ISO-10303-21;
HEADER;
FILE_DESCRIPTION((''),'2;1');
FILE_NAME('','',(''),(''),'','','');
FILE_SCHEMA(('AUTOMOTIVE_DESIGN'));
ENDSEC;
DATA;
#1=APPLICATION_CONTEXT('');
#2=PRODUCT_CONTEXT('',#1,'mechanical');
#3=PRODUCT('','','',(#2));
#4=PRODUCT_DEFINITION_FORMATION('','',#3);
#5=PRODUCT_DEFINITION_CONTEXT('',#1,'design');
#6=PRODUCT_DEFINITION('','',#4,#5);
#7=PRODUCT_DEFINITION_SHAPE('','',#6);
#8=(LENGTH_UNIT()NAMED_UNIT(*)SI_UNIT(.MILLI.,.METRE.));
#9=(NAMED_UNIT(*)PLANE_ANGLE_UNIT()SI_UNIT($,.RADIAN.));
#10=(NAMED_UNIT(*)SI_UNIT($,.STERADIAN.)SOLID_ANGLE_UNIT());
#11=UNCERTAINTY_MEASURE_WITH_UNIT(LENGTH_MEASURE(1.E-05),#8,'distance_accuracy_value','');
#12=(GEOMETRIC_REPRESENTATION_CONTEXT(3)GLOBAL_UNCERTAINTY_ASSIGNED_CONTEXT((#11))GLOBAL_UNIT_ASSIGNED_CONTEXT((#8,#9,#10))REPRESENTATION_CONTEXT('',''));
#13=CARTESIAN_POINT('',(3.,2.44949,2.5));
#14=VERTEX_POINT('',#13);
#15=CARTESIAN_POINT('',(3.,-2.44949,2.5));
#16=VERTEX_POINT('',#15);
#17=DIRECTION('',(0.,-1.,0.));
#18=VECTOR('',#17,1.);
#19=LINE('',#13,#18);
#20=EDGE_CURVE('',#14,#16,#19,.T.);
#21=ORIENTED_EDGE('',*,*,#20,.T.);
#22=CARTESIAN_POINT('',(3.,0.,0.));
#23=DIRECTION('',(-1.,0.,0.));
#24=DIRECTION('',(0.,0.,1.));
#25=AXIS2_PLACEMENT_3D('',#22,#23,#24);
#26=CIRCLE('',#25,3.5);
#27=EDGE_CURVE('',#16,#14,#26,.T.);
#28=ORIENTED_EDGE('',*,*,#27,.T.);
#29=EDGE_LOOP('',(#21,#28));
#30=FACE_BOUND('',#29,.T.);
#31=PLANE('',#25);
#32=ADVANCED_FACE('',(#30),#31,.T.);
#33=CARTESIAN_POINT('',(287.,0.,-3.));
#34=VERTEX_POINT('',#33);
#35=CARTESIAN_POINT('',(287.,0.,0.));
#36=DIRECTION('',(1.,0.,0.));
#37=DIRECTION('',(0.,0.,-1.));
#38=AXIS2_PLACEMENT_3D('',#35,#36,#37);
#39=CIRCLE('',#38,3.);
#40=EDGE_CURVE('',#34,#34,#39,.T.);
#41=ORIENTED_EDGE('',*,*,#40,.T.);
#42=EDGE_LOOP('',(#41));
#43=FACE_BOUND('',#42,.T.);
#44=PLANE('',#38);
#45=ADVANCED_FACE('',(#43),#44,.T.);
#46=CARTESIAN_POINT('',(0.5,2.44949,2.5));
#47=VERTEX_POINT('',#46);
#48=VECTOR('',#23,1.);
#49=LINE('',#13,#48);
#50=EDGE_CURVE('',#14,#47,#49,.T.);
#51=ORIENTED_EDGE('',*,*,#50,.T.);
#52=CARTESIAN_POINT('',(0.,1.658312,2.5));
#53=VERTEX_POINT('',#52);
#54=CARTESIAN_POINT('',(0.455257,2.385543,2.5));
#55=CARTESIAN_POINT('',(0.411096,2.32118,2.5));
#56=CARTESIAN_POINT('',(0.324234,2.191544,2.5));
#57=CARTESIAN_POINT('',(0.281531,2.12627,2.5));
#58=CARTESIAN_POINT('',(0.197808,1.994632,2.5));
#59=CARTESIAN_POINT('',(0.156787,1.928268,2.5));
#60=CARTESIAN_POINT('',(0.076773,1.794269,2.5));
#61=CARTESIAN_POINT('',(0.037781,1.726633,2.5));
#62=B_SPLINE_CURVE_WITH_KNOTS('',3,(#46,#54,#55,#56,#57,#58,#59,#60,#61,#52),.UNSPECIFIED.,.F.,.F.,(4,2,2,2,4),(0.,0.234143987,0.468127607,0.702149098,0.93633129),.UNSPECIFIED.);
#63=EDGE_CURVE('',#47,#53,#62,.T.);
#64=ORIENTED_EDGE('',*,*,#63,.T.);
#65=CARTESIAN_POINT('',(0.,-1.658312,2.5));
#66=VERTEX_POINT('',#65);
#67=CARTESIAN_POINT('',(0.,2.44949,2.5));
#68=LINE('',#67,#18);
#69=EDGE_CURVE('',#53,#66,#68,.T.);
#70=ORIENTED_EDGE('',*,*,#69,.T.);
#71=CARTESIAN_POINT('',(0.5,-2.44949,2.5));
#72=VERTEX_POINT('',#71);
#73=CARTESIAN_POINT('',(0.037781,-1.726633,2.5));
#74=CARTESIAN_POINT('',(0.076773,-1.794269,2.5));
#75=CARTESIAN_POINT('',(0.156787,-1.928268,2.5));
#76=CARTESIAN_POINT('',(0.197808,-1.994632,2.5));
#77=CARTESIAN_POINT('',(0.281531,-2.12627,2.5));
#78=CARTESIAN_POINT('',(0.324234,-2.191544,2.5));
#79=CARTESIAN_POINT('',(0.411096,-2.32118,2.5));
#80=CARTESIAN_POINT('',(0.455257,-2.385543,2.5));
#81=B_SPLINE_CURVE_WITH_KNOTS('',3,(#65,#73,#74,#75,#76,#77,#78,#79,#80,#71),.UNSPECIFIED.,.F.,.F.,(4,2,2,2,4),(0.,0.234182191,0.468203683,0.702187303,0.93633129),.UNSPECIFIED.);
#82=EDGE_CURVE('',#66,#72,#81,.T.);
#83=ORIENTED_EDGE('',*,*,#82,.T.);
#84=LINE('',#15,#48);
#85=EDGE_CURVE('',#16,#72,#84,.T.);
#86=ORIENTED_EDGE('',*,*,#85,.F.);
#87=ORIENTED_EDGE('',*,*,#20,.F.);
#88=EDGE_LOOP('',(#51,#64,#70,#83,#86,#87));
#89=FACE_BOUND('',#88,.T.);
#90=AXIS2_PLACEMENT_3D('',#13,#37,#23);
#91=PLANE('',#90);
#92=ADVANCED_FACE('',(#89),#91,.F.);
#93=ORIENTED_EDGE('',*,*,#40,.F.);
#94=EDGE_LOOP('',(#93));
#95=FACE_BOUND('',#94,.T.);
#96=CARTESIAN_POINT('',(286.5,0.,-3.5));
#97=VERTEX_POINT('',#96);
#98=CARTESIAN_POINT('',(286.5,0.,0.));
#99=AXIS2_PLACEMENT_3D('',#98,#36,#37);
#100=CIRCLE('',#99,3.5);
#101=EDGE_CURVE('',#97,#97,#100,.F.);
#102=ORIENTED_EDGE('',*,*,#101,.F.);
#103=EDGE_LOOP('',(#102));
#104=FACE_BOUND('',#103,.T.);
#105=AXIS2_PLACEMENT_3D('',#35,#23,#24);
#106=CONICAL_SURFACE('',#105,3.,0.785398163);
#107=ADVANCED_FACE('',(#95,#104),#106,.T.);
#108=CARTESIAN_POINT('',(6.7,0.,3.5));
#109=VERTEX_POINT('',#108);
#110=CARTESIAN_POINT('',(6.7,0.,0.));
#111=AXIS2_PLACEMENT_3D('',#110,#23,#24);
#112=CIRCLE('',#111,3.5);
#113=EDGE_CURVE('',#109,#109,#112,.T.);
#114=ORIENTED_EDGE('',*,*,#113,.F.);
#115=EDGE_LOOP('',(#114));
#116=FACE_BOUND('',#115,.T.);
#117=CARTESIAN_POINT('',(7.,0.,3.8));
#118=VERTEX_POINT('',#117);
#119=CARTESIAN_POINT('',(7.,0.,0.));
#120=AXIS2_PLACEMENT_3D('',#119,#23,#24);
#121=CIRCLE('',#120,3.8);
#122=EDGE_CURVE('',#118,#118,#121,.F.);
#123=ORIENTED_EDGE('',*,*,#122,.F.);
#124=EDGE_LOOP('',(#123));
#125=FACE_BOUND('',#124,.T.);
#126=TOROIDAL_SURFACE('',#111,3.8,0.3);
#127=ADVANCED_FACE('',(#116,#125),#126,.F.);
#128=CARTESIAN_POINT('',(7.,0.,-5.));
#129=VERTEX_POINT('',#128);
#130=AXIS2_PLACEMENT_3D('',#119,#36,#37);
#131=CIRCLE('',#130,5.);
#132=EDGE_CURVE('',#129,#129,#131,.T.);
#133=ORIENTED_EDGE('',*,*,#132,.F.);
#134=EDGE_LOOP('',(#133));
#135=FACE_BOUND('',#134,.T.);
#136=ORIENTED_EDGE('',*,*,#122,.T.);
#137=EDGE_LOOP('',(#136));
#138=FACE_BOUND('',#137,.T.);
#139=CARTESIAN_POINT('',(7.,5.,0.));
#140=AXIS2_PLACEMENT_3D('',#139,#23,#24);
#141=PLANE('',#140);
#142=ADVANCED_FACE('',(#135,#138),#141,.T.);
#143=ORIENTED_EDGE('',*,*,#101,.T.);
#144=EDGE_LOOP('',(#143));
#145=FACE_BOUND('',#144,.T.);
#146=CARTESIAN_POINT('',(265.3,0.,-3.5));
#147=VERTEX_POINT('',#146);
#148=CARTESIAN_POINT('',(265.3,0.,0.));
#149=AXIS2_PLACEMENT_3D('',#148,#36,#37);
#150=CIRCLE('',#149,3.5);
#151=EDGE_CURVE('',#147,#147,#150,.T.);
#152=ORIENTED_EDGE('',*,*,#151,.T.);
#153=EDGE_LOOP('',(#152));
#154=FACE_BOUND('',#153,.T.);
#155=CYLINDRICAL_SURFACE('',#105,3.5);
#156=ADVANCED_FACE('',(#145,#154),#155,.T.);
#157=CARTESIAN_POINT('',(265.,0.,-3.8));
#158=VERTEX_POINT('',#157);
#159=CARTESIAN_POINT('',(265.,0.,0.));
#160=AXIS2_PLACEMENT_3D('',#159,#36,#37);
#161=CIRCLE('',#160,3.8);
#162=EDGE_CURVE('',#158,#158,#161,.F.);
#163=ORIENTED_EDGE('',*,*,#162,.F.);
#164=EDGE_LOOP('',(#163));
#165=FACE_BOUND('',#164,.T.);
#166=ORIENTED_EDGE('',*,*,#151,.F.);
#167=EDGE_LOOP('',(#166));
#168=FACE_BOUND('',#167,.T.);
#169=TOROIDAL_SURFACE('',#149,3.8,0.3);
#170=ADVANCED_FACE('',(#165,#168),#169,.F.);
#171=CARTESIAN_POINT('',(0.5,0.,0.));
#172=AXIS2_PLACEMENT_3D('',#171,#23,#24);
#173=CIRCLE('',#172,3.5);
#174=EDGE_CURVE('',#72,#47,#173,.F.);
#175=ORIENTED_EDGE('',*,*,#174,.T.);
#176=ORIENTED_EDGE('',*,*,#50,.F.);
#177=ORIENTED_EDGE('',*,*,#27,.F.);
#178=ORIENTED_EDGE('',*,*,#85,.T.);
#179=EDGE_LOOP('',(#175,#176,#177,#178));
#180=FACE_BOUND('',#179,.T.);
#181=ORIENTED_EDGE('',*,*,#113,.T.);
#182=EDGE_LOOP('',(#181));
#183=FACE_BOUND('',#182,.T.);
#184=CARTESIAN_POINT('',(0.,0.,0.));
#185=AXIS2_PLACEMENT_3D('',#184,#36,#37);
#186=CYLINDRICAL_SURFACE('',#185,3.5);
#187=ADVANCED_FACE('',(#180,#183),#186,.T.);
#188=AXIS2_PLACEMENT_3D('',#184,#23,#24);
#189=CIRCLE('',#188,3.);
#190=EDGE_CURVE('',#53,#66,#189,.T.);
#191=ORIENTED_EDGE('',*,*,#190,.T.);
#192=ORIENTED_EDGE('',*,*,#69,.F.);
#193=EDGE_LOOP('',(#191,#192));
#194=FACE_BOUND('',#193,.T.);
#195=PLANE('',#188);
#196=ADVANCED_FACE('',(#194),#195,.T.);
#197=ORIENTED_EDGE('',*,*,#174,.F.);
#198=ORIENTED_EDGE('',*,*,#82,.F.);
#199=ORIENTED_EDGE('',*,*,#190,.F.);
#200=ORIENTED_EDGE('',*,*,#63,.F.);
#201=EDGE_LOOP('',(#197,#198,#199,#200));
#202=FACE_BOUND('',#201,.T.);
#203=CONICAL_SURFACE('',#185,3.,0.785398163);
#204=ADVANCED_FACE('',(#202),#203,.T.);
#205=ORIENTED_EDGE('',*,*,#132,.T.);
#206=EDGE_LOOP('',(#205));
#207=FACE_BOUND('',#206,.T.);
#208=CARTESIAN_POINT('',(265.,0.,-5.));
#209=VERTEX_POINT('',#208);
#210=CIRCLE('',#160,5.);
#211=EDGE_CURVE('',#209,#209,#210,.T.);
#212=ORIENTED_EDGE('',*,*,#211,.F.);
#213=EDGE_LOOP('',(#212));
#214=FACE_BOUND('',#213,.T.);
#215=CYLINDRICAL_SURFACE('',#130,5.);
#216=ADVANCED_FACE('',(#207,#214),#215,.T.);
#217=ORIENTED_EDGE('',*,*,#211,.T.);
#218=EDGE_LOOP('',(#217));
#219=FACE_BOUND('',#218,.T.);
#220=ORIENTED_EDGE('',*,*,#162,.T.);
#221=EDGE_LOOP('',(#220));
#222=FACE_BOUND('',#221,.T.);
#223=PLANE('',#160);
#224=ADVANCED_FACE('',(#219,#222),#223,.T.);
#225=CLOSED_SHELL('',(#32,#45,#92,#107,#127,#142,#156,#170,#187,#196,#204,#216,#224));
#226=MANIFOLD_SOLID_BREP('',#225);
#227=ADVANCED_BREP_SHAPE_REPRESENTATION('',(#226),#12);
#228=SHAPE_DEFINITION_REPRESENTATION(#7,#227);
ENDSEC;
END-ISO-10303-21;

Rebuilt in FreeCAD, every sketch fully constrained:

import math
import FreeCAD as App
import Part
import Sketcher
from FreeCAD import Vector
Q = App.Units.Quantity


def edges_at(feature, points):
    """Names of the edges that pass closest to the given points."""
    edges = feature.Shape.Edges
    near = lambda p: min(range(len(edges)), key=lambda i: edges[i].distToShape(Part.Vertex(*p))[0])
    return sorted({f"Edge{near(p) + 1}" for p in points})


def add_polygon(sketch, points):
    """Adds a closed chain of lines whose ends are joined by coincident constraints."""
    first, n = sketch.GeometryCount, len(points)
    for a, b in zip(points, points[1:] + points[:1]):
        sketch.addGeometry(Part.LineSegment(App.Vector(*a, 0), App.Vector(*b, 0)), False)
    for i in range(n):
        sketch.addConstraint(Sketcher.Constraint("Coincident", first + i, 2, first + (i + 1) % n, 1))

doc = App.newDocument("Part")
body = doc.addObject("PartDesign::Body", "Body")

# Sketch on XY plane
sketch1 = doc.addObject("Sketcher::SketchObject", "Sketch")
body.addObject(sketch1)
sketch1.AttachmentSupport = (doc.XY_Plane, [""])
sketch1.MapMode = "FlatFace"
add_polygon(sketch1, [(7, 5), (7, 0), (265, 0), (265, 5)])  # lines 0-3
sketch1.addConstraint([
    Sketcher.Constraint("Vertical", 0),
    Sketcher.Constraint("Horizontal", 1),
    Sketcher.Constraint("Vertical", 2),
    Sketcher.Constraint("Horizontal", 3),
    Sketcher.Constraint("PointOnObject", 0, 2, -1),
    Sketcher.Constraint("DistanceX", 1, 1, 1, 2, Q("258 mm")),
    Sketcher.Constraint("DistanceY", 0, 2, 0, 1, Q("5 mm")),
    Sketcher.Constraint("DistanceX", -1, 1, 0, 2, Q("7 mm")),
])
revolution = doc.addObject("PartDesign::Revolution", "Revolution")
body.addObject(revolution)
revolution.Profile = sketch1
revolution.ReferenceAxis = (sketch1, ["H_Axis"])
revolution.Angle = 360

# Sketch on YZ plane
sketch2 = doc.addObject("Sketcher::SketchObject", "Sketch001")
body.addObject(sketch2)
sketch2.AttachmentSupport = (doc.YZ_Plane, [""])
sketch2.MapMode = "FlatFace"
sketch2.AttachmentOffset = App.Placement(Vector(0, 0, 7), App.Rotation())
sketch2.addGeometry(Part.Circle(Vector(0, 0, 0), Vector(0, 0, 1), 3.5), False)
sketch2.addConstraint([
    Sketcher.Constraint("Coincident", 0, 3, -1, 1),
    Sketcher.Constraint("Diameter", 0, Q("7 mm")),
])
pad1 = doc.addObject("PartDesign::Pad", "Pad")
body.addObject(pad1)
pad1.Profile = sketch2
pad1.Length = 7
pad1.Reversed = True

# Sketch on YZ plane
sketch3 = doc.addObject("Sketcher::SketchObject", "Sketch002")
body.addObject(sketch3)
sketch3.AttachmentSupport = (doc.YZ_Plane, [""])
sketch3.MapMode = "FlatFace"
sketch3.AttachmentOffset = App.Placement(Vector(0, 0, 3), App.Rotation())
sketch3.addGeometry([
    Part.LineSegment(Vector(2.4, 2.5, 0), Vector(-2.4, 2.5, 0)),
    Part.ArcOfCircle(Part.Circle(Vector(0, 0, 0), Vector(0, 0, 1), 3.5), math.radians(46), math.radians(134)),
], False)
sketch3.addConstraint([
    Sketcher.Constraint("Coincident", 0, 1, 1, 1),
    Sketcher.Constraint("Coincident", 1, 2, 0, 2),
    Sketcher.Constraint("Horizontal", 0),
    Sketcher.Constraint("Coincident", 1, 3, -1, 1),
    Sketcher.Constraint("Radius", 1, Q("3.5 mm")),
    Sketcher.Constraint("DistanceY", -1, 1, 0, 1, Q("2.5 mm")),
])
pocket1 = doc.addObject("PartDesign::Pocket", "Pocket")
body.addObject(pocket1)
pocket1.Profile = sketch3
pocket1.Length = 3

# Sketch on YZ plane
sketch4 = doc.addObject("Sketcher::SketchObject", "Sketch003")
body.addObject(sketch4)
sketch4.AttachmentSupport = (doc.YZ_Plane, [""])
sketch4.MapMode = "FlatFace"
sketch4.AttachmentOffset = App.Placement(Vector(0, 0, 287), App.Rotation())
sketch4.addGeometry(Part.Circle(Vector(0, 0, 0), Vector(0, 0, 1), 3.5), False)
sketch4.addConstraint([
    Sketcher.Constraint("Coincident", 0, 3, -1, 1),
    Sketcher.Constraint("Diameter", 0, Q("7 mm")),
])
pad2 = doc.addObject("PartDesign::Pad", "Pad001")
body.addObject(pad2)
pad2.Profile = sketch4
pad2.Length = 22
pad2.Reversed = True
doc.recompute()

chamfer = doc.addObject("PartDesign::Chamfer", "Chamfer")
body.addObject(chamfer)
chamfer.Base = (pad2, edges_at(pad2, [(287, -2.449, -2.5), (0, 0, -3.5)]))
chamfer.Size = 0.5
doc.recompute()

fillet = doc.addObject("PartDesign::Fillet", "Fillet")
body.addObject(fillet)
fillet.Base = (chamfer, edges_at(chamfer, [(265, -2.449, -2.5), (7, 0, -3.5)]))
fillet.Radius = 0.3

doc.recompute()
